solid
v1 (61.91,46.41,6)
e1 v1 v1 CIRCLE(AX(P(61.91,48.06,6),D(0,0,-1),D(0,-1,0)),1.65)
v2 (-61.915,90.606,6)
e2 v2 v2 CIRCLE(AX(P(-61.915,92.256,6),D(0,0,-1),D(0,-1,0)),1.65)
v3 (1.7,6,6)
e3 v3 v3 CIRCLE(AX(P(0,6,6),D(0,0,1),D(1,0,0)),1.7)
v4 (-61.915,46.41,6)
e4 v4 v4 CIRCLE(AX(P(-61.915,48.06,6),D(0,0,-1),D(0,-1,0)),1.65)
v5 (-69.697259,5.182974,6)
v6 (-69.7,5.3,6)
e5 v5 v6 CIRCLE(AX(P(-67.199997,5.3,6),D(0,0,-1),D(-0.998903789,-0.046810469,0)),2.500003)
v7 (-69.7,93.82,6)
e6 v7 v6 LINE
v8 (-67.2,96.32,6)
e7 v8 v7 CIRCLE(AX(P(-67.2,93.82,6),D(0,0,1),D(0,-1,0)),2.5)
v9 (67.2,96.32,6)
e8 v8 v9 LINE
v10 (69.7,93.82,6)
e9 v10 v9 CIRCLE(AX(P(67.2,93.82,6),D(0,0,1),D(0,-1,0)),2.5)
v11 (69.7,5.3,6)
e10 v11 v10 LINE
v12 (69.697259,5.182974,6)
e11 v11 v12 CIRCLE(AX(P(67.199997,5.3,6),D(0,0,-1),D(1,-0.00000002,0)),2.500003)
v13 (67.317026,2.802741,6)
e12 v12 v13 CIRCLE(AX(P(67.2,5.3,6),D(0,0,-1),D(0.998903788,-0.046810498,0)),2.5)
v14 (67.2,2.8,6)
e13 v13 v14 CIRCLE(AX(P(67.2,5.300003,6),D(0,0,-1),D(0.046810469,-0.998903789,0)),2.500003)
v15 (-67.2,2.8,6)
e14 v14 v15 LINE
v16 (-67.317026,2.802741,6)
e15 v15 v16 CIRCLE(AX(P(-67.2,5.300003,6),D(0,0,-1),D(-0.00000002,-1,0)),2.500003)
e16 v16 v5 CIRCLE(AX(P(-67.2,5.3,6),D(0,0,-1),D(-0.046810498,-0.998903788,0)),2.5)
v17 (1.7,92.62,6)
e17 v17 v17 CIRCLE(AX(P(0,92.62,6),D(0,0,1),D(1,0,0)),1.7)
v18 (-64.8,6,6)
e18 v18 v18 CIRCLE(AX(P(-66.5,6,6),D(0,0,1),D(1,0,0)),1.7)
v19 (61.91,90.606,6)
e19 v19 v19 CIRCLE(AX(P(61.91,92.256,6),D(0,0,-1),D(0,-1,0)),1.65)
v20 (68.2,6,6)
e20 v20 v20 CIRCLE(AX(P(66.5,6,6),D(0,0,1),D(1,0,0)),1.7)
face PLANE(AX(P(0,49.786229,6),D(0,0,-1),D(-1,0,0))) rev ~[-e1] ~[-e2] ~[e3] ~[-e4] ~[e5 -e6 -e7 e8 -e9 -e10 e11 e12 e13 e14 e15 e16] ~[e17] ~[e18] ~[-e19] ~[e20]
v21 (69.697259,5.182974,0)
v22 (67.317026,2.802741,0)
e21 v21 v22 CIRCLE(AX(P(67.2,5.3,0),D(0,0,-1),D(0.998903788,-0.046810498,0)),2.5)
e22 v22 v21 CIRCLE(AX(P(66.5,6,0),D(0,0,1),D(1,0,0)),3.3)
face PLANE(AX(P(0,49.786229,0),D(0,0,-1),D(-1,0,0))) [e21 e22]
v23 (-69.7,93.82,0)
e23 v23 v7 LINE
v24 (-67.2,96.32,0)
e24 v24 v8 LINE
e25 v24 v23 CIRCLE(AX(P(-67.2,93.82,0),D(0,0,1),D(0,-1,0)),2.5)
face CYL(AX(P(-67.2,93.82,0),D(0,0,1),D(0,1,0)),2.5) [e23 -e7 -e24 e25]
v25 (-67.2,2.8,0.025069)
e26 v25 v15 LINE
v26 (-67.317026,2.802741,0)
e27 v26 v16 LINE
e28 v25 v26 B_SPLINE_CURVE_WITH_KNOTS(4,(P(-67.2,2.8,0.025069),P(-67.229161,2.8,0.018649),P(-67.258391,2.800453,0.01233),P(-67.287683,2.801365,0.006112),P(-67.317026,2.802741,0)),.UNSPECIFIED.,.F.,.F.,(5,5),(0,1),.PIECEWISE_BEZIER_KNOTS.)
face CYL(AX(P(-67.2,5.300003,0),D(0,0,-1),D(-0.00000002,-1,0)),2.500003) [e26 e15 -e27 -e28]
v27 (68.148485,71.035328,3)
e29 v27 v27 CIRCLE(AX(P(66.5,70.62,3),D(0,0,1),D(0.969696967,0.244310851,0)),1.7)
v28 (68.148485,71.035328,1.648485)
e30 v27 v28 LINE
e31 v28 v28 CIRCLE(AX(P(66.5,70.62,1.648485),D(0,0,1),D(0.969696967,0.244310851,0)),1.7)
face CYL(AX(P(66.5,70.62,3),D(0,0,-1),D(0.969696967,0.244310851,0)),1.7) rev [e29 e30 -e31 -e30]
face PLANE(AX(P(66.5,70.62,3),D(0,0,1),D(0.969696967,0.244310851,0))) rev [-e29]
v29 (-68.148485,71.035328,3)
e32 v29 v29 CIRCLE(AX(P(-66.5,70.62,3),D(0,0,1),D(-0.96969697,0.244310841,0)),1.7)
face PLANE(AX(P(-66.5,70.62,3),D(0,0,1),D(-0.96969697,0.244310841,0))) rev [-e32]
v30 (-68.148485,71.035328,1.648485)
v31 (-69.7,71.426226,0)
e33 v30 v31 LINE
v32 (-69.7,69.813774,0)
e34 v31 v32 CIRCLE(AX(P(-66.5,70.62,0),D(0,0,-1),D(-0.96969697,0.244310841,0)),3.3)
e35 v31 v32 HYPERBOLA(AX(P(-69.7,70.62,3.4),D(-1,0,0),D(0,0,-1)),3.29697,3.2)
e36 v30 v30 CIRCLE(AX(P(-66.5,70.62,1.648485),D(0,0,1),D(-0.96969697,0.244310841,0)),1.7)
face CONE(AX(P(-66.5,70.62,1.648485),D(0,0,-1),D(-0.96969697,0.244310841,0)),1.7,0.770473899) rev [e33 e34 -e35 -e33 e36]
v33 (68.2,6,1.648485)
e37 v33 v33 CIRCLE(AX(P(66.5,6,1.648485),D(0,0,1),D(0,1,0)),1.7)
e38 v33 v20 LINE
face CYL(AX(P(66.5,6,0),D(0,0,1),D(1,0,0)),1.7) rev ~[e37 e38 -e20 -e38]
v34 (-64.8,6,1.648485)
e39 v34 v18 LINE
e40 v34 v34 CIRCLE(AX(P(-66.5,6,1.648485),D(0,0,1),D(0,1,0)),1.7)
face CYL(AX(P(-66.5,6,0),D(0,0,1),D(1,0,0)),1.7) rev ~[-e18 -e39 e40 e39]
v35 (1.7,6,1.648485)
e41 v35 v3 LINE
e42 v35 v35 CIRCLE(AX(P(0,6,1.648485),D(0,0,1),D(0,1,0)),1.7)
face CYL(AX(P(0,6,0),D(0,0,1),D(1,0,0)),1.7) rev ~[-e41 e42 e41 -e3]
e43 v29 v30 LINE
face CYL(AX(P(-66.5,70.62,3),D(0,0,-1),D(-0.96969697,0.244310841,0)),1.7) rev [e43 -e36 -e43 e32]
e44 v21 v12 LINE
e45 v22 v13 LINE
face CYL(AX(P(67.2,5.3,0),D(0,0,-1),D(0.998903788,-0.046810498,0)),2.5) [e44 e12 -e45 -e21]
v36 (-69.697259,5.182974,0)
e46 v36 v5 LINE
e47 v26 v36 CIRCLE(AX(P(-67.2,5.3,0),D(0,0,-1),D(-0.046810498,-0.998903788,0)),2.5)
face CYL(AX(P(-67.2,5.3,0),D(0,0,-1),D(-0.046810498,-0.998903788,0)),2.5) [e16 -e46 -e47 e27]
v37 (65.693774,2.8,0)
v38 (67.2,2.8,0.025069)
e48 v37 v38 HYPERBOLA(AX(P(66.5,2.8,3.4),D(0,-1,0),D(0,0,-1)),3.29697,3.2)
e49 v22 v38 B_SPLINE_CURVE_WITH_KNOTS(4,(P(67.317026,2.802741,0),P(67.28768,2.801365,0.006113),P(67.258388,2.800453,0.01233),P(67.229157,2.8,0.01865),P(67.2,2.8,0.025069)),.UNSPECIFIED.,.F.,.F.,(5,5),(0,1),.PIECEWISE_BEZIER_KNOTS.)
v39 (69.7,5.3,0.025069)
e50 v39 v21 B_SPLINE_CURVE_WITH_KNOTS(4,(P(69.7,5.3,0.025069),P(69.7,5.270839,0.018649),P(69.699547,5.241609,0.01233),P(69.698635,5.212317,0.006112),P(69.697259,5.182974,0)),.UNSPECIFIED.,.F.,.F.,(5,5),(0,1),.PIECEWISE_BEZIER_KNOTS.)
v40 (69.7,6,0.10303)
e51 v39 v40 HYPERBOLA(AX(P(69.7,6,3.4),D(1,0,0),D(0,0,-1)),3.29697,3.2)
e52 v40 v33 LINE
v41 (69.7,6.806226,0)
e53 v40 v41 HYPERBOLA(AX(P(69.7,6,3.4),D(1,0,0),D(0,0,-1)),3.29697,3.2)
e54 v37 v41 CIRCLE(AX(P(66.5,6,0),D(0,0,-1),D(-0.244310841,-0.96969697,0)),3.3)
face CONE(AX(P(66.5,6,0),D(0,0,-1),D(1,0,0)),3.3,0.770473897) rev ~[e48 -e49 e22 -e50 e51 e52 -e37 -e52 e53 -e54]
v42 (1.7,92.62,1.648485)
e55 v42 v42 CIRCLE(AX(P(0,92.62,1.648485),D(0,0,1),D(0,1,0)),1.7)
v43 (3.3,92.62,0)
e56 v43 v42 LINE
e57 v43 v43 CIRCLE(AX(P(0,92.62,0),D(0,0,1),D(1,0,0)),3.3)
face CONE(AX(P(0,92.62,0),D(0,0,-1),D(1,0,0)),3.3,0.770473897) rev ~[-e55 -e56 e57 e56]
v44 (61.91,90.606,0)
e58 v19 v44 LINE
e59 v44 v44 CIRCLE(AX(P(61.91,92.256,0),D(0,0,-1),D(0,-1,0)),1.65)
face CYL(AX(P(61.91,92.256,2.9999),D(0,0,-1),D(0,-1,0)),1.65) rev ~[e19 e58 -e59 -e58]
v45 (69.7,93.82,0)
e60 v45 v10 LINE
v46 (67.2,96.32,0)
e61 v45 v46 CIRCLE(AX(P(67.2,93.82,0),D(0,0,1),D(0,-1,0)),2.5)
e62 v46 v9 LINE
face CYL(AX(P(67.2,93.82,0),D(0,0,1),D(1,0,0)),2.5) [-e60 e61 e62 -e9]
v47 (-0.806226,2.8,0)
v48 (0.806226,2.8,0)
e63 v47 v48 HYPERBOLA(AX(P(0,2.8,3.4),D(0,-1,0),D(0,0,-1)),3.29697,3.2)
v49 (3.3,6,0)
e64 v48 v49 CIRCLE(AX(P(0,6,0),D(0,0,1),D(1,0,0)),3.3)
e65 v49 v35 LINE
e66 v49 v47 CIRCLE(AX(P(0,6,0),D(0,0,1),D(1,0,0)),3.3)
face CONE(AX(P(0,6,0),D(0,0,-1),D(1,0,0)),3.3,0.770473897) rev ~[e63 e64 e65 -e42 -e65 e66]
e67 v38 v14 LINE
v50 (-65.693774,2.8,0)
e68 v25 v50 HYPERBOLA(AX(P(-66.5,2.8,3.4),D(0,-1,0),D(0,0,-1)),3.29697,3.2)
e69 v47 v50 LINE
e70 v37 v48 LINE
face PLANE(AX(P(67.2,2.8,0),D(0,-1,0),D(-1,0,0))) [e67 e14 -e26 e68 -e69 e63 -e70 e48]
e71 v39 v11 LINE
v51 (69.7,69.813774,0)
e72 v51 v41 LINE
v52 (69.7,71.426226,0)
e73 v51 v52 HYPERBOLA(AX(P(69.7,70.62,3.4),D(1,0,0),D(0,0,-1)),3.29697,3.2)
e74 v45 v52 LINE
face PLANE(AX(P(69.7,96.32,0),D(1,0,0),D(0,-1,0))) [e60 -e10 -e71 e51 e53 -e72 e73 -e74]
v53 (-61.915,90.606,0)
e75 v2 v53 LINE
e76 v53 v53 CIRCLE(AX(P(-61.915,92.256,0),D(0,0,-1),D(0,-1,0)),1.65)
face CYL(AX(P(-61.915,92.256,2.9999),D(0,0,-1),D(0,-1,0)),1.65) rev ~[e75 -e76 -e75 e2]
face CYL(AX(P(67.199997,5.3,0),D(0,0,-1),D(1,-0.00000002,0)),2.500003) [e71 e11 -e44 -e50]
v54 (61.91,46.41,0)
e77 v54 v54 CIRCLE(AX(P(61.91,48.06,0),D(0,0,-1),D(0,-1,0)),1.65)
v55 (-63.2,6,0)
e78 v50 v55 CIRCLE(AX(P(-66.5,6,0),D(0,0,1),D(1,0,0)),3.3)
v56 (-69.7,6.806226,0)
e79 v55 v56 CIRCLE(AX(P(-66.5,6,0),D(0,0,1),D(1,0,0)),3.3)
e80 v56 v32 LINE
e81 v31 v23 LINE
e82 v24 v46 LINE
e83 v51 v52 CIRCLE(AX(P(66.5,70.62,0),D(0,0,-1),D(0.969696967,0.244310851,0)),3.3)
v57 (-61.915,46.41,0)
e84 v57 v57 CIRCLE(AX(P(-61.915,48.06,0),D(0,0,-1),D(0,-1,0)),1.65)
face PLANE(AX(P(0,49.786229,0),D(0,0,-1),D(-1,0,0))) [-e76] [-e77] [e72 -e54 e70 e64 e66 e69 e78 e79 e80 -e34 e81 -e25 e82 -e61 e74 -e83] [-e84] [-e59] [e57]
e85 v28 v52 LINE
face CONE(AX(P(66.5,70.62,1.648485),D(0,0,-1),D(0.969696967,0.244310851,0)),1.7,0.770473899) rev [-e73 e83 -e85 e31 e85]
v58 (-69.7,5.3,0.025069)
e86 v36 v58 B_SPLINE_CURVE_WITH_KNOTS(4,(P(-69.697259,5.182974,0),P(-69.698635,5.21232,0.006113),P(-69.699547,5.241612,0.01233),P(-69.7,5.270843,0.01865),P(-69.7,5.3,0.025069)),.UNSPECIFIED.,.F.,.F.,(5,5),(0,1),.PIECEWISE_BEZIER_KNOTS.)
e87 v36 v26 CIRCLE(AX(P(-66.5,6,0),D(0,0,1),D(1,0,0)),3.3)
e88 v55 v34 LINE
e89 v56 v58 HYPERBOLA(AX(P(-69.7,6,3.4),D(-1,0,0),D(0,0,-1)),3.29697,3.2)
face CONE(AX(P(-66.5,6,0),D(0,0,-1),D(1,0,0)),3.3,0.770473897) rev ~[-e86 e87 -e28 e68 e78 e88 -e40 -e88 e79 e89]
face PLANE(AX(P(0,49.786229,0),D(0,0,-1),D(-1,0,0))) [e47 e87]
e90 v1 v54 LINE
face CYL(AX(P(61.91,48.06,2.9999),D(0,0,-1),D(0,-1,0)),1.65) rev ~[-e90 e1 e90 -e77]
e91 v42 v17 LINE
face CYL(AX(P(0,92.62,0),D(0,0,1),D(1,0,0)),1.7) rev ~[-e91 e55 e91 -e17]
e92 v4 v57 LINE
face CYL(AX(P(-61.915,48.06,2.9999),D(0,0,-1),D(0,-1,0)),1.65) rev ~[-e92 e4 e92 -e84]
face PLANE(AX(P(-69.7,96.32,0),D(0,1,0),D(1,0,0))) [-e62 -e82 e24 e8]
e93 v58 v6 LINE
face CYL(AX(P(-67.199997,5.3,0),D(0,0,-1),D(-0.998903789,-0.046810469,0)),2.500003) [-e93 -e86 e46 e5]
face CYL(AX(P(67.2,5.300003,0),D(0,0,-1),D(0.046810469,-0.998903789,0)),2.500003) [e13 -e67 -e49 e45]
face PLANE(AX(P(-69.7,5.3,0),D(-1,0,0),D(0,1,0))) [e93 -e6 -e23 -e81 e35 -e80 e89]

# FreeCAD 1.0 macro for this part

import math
import FreeCAD as App
import Part
import Sketcher
from FreeCAD import Vector


def edges_at(feature, points):
    """Names of the edges that pass closest to the given points."""
    edges = feature.Shape.Edges
    near = lambda p: min(range(len(edges)), key=lambda i: edges[i].distToShape(Part.Vertex(*p))[0])
    return sorted({f"Edge{near(p) + 1}" for p in points})

doc = App.newDocument("Part")
body = doc.addObject("PartDesign::Body", "Body")

# Sketch on XY plane
sketch1 = body.newObject("Sketcher::SketchObject", "Sketch")
sketch1.AttachmentSupport = (doc.getObject("XY_Plane"), [""])
sketch1.MapMode = "FlatFace"
sketch1.addGeometry(Part.ArcOfCircle(Part.Circle(Vector(67.2, 5.3, 0), Vector(0, 0, 1), 2.5), math.radians(-2.68), math.radians(0)), False)
sketch1.addGeometry(Part.ArcOfCircle(Part.Circle(Vector(67.2, 5.3, 0), Vector(0, 0, 1), 2.5), math.radians(-87), math.radians(-3)), False)
sketch1.addGeometry(Part.ArcOfCircle(Part.Circle(Vector(67.2, 5.3, 0), Vector(0, 0, 1), 2.5), math.radians(-90), math.radians(-87.32)), False)
sketch1.addGeometry(Part.LineSegment(Vector(67.2, 2.8, 0), Vector(-67.2, 2.8, 0)), False)
sketch1.addGeometry(Part.ArcOfCircle(Part.Circle(Vector(-67.2, 5.3, 0), Vector(0, 0, 1), 2.5), math.radians(-92.68), math.radians(-90)), False)
sketch1.addGeometry(Part.ArcOfCircle(Part.Circle(Vector(-67.2, 5.3, 0), Vector(0, 0, 1), 2.5), math.radians(-177), math.radians(-93)), False)
sketch1.addGeometry(Part.ArcOfCircle(Part.Circle(Vector(-67.2, 5.3, 0), Vector(0, 0, 1), 2.5), math.radians(-180), math.radians(-177.32)), False)
sketch1.addGeometry(Part.LineSegment(Vector(-69.7, 5.3, 0), Vector(-69.7, 96.32, 0)), False)
sketch1.addGeometry(Part.LineSegment(Vector(-69.7, 96.32, 0), Vector(69.7, 96.32, 0)), False)
sketch1.addGeometry(Part.LineSegment(Vector(69.7, 96.32, 0), Vector(69.7, 5.3, 0)), False)
sketch1.addConstraint(Sketcher.Constraint("Tangent", 0, 1, 1, 2))
sketch1.addConstraint(Sketcher.Constraint("Tangent", 1, 1, 2, 2))
sketch1.addConstraint(Sketcher.Constraint("Tangent", 2, 1, 3, 1))
sketch1.addConstraint(Sketcher.Constraint("Tangent", 3, 2, 4, 2))
sketch1.addConstraint(Sketcher.Constraint("Tangent", 4, 1, 5, 2))
sketch1.addConstraint(Sketcher.Constraint("Tangent", 5, 1, 6, 2))
sketch1.addConstraint(Sketcher.Constraint("Tangent", 6, 1, 7, 1))
sketch1.addConstraint(Sketcher.Constraint("Coincident", 7, 2, 8, 1))
sketch1.addConstraint(Sketcher.Constraint("Coincident", 8, 2, 9, 1))
sketch1.addConstraint(Sketcher.Constraint("Tangent", 9, 2, 0, 2))
sketch1.addConstraint(Sketcher.Constraint("Horizontal", 3))
sketch1.addConstraint(Sketcher.Constraint("Vertical", 7))
sketch1.addConstraint(Sketcher.Constraint("Horizontal", 8))
sketch1.addConstraint(Sketcher.Constraint("Vertical", 9))
sketch1.addConstraint(Sketcher.Constraint("Coincident", 2, 3, 0, 3))
sketch1.addConstraint(Sketcher.Constraint("Coincident", 6, 3, 4, 3))
sketch1.addConstraint(Sketcher.Constraint("Equal", 2, 4))
sketch1.addConstraint(Sketcher.Constraint("Symmetric", 1, 1, 4, 1, -2))
sketch1.addConstraint(Sketcher.Constraint("Horizontal", 0, 1, 5, 1))
sketch1.addConstraint(Sketcher.Constraint("Radius", 1, 2.5))
sketch1.addConstraint(Sketcher.Constraint("DistanceX", 3, 2, 3, 1, 134.4))
sketch1.addConstraint(Sketcher.Constraint("DistanceY", 7, 1, 7, 2, 91.02))
sketch1.addConstraint(Sketcher.Constraint("DistanceY", -1, 1, 0, 3, 5.3))
sketch1.addConstraint(Sketcher.Constraint("DistanceX", -1, 1, 0, 1, 69.697259))
sketch1.addConstraint(Sketcher.Constraint("DistanceY", -1, 1, 1, 1, 2.802741))
pad1 = body.newObject("PartDesign::Pad", "Pad")
pad1.Profile = sketch1
pad1.Length = 6

# Sketch on XZ plane
sketch2 = body.newObject("Sketcher::SketchObject", "Sketch001")
sketch2.AttachmentSupport = (doc.getObject("XZ_Plane"), [""])
sketch2.MapMode = "FlatFace"
sketch2.AttachmentOffset = App.Placement(Vector(0, 0, -70.62), App.Rotation())
sketch2.addGeometry(Part.LineSegment(Vector(69.8, 0, 0), Vector(66.5, 0, 0)), False)
sketch2.addGeometry(Part.LineSegment(Vector(66.5, 0, 0), Vector(66.5, 3, 0)), False)
sketch2.addGeometry(Part.LineSegment(Vector(66.5, 3, 0), Vector(68.2, 3, 0)), False)
sketch2.addGeometry(Part.LineSegment(Vector(68.2, 3, 0), Vector(68.2, 1.6, 0)), False)
sketch2.addGeometry(Part.LineSegment(Vector(68.2, 1.6, 0), Vector(69.8, 0, 0)), False)
sketch2.addGeometry(Part.LineSegment(Vector(66.5, 0, 0), Vector(66.5, 3, 0)), True)  # axis
sketch2.addConstraint(Sketcher.Constraint("Coincident", 0, 2, 1, 1))
sketch2.addConstraint(Sketcher.Constraint("Coincident", 1, 2, 2, 1))
sketch2.addConstraint(Sketcher.Constraint("Coincident", 2, 2, 3, 1))
sketch2.addConstraint(Sketcher.Constraint("Coincident", 3, 2, 4, 1))
sketch2.addConstraint(Sketcher.Constraint("Coincident", 4, 2, 0, 1))
sketch2.addConstraint(Sketcher.Constraint("Horizontal", 0))
sketch2.addConstraint(Sketcher.Constraint("Vertical", 1))
sketch2.addConstraint(Sketcher.Constraint("Horizontal", 2))
sketch2.addConstraint(Sketcher.Constraint("Vertical", 3))
sketch2.addConstraint(Sketcher.Constraint("Vertical", 5))
sketch2.addConstraint(Sketcher.Constraint("Coincident", 5, 1, 0, 2))
sketch2.addConstraint(Sketcher.Constraint("Horizontal", 2, 2, 5, 2))
sketch2.addConstraint(Sketcher.Constraint("DistanceX", 2, 1, 2, 2, 1.7))
sketch2.addConstraint(Sketcher.Constraint("DistanceY", -1, 1, 1, 2, 3.0))
sketch2.addConstraint(Sketcher.Constraint("DistanceX", -1, 1, 0, 2, 66.5))
sketch2.addConstraint(Sketcher.Constraint("DistanceY", 1, 1, 1, 2, 3.0002))
sketch2.addConstraint(Sketcher.Constraint("Distance", 4, 2.29756))
sketch2.addConstraint(Sketcher.Constraint("DistanceX", 0, 2, 0, 1, 3.300194))
groove = body.newObject("PartDesign::Groove", "Groove")
groove.Profile = sketch2
groove.ReferenceAxis = (sketch2, ["Axis0"])
groove.Angle = 360

# Sketch on XZ plane
sketch3 = body.newObject("Sketcher::SketchObject", "Sketch002")
sketch3.AttachmentSupport = (doc.getObject("XZ_Plane"), [""])
sketch3.MapMode = "FlatFace"
sketch3.AttachmentOffset = App.Placement(Vector(0, 0, -70.62), App.Rotation())
sketch3.addGeometry(Part.LineSegment(Vector(-63.2, 0, 0), Vector(-66.5, 0, 0)), False)
sketch3.addGeometry(Part.LineSegment(Vector(-66.5, 0, 0), Vector(-66.5, 3, 0)), False)
sketch3.addGeometry(Part.LineSegment(Vector(-66.5, 3, 0), Vector(-64.8, 3, 0)), False)
sketch3.addGeometry(Part.LineSegment(Vector(-64.8, 3, 0), Vector(-64.8, 1.6, 0)), False)
sketch3.addGeometry(Part.LineSegment(Vector(-64.8, 1.6, 0), Vector(-63.2, 0, 0)), False)
sketch3.addGeometry(Part.LineSegment(Vector(-66.5, 0, 0), Vector(-66.5, 3, 0)), True)  # axis
sketch3.addConstraint(Sketcher.Constraint("Coincident", 0, 2, 1, 1))
sketch3.addConstraint(Sketcher.Constraint("Coincident", 1, 2, 2, 1))
sketch3.addConstraint(Sketcher.Constraint("Coincident", 2, 2, 3, 1))
sketch3.addConstraint(Sketcher.Constraint("Coincident", 3, 2, 4, 1))
sketch3.addConstraint(Sketcher.Constraint("Coincident", 4, 2, 0, 1))
sketch3.addConstraint(Sketcher.Constraint("Horizontal", 0))
sketch3.addConstraint(Sketcher.Constraint("Vertical", 1))
sketch3.addConstraint(Sketcher.Constraint("Horizontal", 2))
sketch3.addConstraint(Sketcher.Constraint("Vertical", 3))
sketch3.addConstraint(Sketcher.Constraint("Vertical", 5))
sketch3.addConstraint(Sketcher.Constraint("Coincident", 5, 1, 0, 2))
sketch3.addConstraint(Sketcher.Constraint("Horizontal", 2, 2, 5, 2))
sketch3.addConstraint(Sketcher.Constraint("DistanceX", 2, 1, 2, 2, 1.7))
sketch3.addConstraint(Sketcher.Constraint("DistanceY", -1, 1, 1, 2, 3.0))
sketch3.addConstraint(Sketcher.Constraint("DistanceX", 0, 2, -1, 1, 66.5))
sketch3.addConstraint(Sketcher.Constraint("DistanceY", 1, 1, 1, 2, 3.0002))
sketch3.addConstraint(Sketcher.Constraint("Distance", 4, 2.29756))
sketch3.addConstraint(Sketcher.Constraint("DistanceX", 0, 2, 0, 1, 3.300194))
groove2 = body.newObject("PartDesign::Groove", "Groove001")
groove2.Profile = sketch3
groove2.ReferenceAxis = (sketch3, ["Axis0"])
groove2.Angle = 360

# Sketch on XZ plane
sketch4 = body.newObject("Sketcher::SketchObject", "Sketch003")
sketch4.AttachmentSupport = (doc.getObject("XZ_Plane"), [""])
sketch4.MapMode = "FlatFace"
sketch4.AttachmentOffset = App.Placement(Vector(0, 0, -92.256), App.Rotation())
sketch4.addGeometry(Part.LineSegment(Vector(61.9, 17, 0), Vector(61.9, 3, 0)), False)
sketch4.addGeometry(Part.LineSegment(Vector(61.9, 3, 0), Vector(65.9, 3, 0)), False)
sketch4.addGeometry(Part.LineSegment(Vector(65.9, 3, 0), Vector(65.9, 17, 0)), False)
sketch4.addGeometry(Part.LineSegment(Vector(65.9, 17, 0), Vector(61.9, 17, 0)), False)
sketch4.addGeometry(Part.LineSegment(Vector(61.9, 17, 0), Vector(61.9, 3, 0)), True)  # axis
sketch4.addConstraint(Sketcher.Constraint("Coincident", 0, 2, 1, 1))
sketch4.addConstraint(Sketcher.Constraint("Coincident", 1, 2, 2, 1))
sketch4.addConstraint(Sketcher.Constraint("Coincident", 2, 2, 3, 1))
sketch4.addConstraint(Sketcher.Constraint("Coincident", 3, 2, 0, 1))
sketch4.addConstraint(Sketcher.Constraint("Vertical", 0))
sketch4.addConstraint(Sketcher.Constraint("Horizontal", 1))
sketch4.addConstraint(Sketcher.Constraint("Vertical", 2))
sketch4.addConstraint(Sketcher.Constraint("Horizontal", 3))
sketch4.addConstraint(Sketcher.Constraint("Vertical", 4))
sketch4.addConstraint(Sketcher.Constraint("Coincident", 4, 1, 3, 2))
sketch4.addConstraint(Sketcher.Constraint("Horizontal", 1, 2, 4, 2))
sketch4.addConstraint(Sketcher.Constraint("DistanceX", 1, 1, 1, 2, 4.0))
sketch4.addConstraint(Sketcher.Constraint("DistanceY", 0, 2, 0, 1, 14.0))
sketch4.addConstraint(Sketcher.Constraint("DistanceY", -1, 1, 0, 2, 3.0))
sketch4.addConstraint(Sketcher.Constraint("DistanceX", -1, 1, 0, 2, 61.91))
revolution = body.newObject("PartDesign::Revolution", "Revolution")
revolution.Profile = sketch4
revolution.ReferenceAxis = (sketch4, ["Axis0"])
revolution.Angle = 360

# Sketch on XZ plane
sketch5 = body.newObject("Sketcher::SketchObject", "Sketch004")
sketch5.AttachmentSupport = (doc.getObject("XZ_Plane"), [""])
sketch5.MapMode = "FlatFace"
sketch5.AttachmentOffset = App.Placement(Vector(0, 0, -92.256), App.Rotation())
sketch5.addGeometry(Part.LineSegment(Vector(-61.9, 17, 0), Vector(-61.9, 3, 0)), False)
sketch5.addGeometry(Part.LineSegment(Vector(-61.9, 3, 0), Vector(-57.9, 3, 0)), False)
sketch5.addGeometry(Part.LineSegment(Vector(-57.9, 3, 0), Vector(-57.9, 17, 0)), False)
sketch5.addGeometry(Part.LineSegment(Vector(-57.9, 17, 0), Vector(-61.9, 17, 0)), False)
sketch5.addGeometry(Part.LineSegment(Vector(-61.9, 17, 0), Vector(-61.9, 3, 0)), True)  # axis
sketch5.addConstraint(Sketcher.Constraint("Coincident", 0, 2, 1, 1))
sketch5.addConstraint(Sketcher.Constraint("Coincident", 1, 2, 2, 1))
sketch5.addConstraint(Sketcher.Constraint("Coincident", 2, 2, 3, 1))
sketch5.addConstraint(Sketcher.Constraint("Coincident", 3, 2, 0, 1))
sketch5.addConstraint(Sketcher.Constraint("Vertical", 0))
sketch5.addConstraint(Sketcher.Constraint("Horizontal", 1))
sketch5.addConstraint(Sketcher.Constraint("Vertical", 2))
sketch5.addConstraint(Sketcher.Constraint("Horizontal", 3))
sketch5.addConstraint(Sketcher.Constraint("Vertical", 4))
sketch5.addConstraint(Sketcher.Constraint("Coincident", 4, 1, 3, 2))
sketch5.addConstraint(Sketcher.Constraint("Horizontal", 1, 2, 4, 2))
sketch5.addConstraint(Sketcher.Constraint("DistanceX", 1, 1, 1, 2, 4.0))
sketch5.addConstraint(Sketcher.Constraint("DistanceY", 0, 2, 0, 1, 14.0))
sketch5.addConstraint(Sketcher.Constraint("DistanceY", -1, 1, 0, 2, 3.0))
sketch5.addConstraint(Sketcher.Constraint("DistanceX", 0, 2, -1, 1, 61.915))
revolution2 = body.newObject("PartDesign::Revolution", "Revolution001")
revolution2.Profile = sketch5
revolution2.ReferenceAxis = (sketch5, ["Axis0"])
revolution2.Angle = 360

# Sketch on XZ plane
sketch6 = body.newObject("Sketcher::SketchObject", "Sketch005")
sketch6.AttachmentSupport = (doc.getObject("XZ_Plane"), [""])
sketch6.MapMode = "FlatFace"
sketch6.AttachmentOffset = App.Placement(Vector(0, 0, -48.06), App.Rotation())
sketch6.addGeometry(Part.LineSegment(Vector(61.9, 17, 0), Vector(61.9, 3, 0)), False)
sketch6.addGeometry(Part.LineSegment(Vector(61.9, 3, 0), Vector(65.9, 3, 0)), False)
sketch6.addGeometry(Part.LineSegment(Vector(65.9, 3, 0), Vector(65.9, 17, 0)), False)
sketch6.addGeometry(Part.LineSegment(Vector(65.9, 17, 0), Vector(61.9, 17, 0)), False)
sketch6.addGeometry(Part.LineSegment(Vector(61.9, 17, 0), Vector(61.9, 3, 0)), True)  # axis
sketch6.addConstraint(Sketcher.Constraint("Coincident", 0, 2, 1, 1))
sketch6.addConstraint(Sketcher.Constraint("Coincident", 1, 2, 2, 1))
sketch6.addConstraint(Sketcher.Constraint("Coincident", 2, 2, 3, 1))
sketch6.addConstraint(Sketcher.Constraint("Coincident", 3, 2, 0, 1))
sketch6.addConstraint(Sketcher.Constraint("Vertical", 0))
sketch6.addConstraint(Sketcher.Constraint("Horizontal", 1))
sketch6.addConstraint(Sketcher.Constraint("Vertical", 2))
sketch6.addConstraint(Sketcher.Constraint("Horizontal", 3))
sketch6.addConstraint(Sketcher.Constraint("Vertical", 4))
sketch6.addConstraint(Sketcher.Constraint("Coincident", 4, 1, 3, 2))
sketch6.addConstraint(Sketcher.Constraint("Horizontal", 1, 2, 4, 2))
sketch6.addConstraint(Sketcher.Constraint("DistanceX", 1, 1, 1, 2, 4.0))
sketch6.addConstraint(Sketcher.Constraint("DistanceY", 0, 2, 0, 1, 14.0))
sketch6.addConstraint(Sketcher.Constraint("DistanceY", -1, 1, 0, 2, 3.0))
sketch6.addConstraint(Sketcher.Constraint("DistanceX", -1, 1, 0, 2, 61.91))
revolution3 = body.newObject("PartDesign::Revolution", "Revolution002")
revolution3.Profile = sketch6
revolution3.ReferenceAxis = (sketch6, ["Axis0"])
revolution3.Angle = 360

# Sketch on XZ plane
sketch7 = body.newObject("Sketcher::SketchObject", "Sketch006")
sketch7.AttachmentSupport = (doc.getObject("XZ_Plane"), [""])
sketch7.MapMode = "FlatFace"
sketch7.AttachmentOffset = App.Placement(Vector(0, 0, -48.06), App.Rotation())
sketch7.addGeometry(Part.LineSegment(Vector(-61.9, 17, 0), Vector(-61.9, 3, 0)), False)
sketch7.addGeometry(Part.LineSegment(Vector(-61.9, 3, 0), Vector(-57.9, 3, 0)), False)
sketch7.addGeometry(Part.LineSegment(Vector(-57.9, 3, 0), Vector(-57.9, 17, 0)), False)
sketch7.addGeometry(Part.LineSegment(Vector(-57.9, 17, 0), Vector(-61.9, 17, 0)), False)
sketch7.addGeometry(Part.LineSegment(Vector(-61.9, 17, 0), Vector(-61.9, 3, 0)), True)  # axis
sketch7.addConstraint(Sketcher.Constraint("Coincident", 0, 2, 1, 1))
sketch7.addConstraint(Sketcher.Constraint("Coincident", 1, 2, 2, 1))
sketch7.addConstraint(Sketcher.Constraint("Coincident", 2, 2, 3, 1))
sketch7.addConstraint(Sketcher.Constraint("Coincident", 3, 2, 0, 1))
sketch7.addConstraint(Sketcher.Constraint("Vertical", 0))
sketch7.addConstraint(Sketcher.Constraint("Horizontal", 1))
sketch7.addConstraint(Sketcher.Constraint("Vertical", 2))
sketch7.addConstraint(Sketcher.Constraint("Horizontal", 3))
sketch7.addConstraint(Sketcher.Constraint("Vertical", 4))
sketch7.addConstraint(Sketcher.Constraint("Coincident", 4, 1, 3, 2))
sketch7.addConstraint(Sketcher.Constraint("Horizontal", 1, 2, 4, 2))
sketch7.addConstraint(Sketcher.Constraint("DistanceX", 1, 1, 1, 2, 4.0))
sketch7.addConstraint(Sketcher.Constraint("DistanceY", 0, 2, 0, 1, 14.0))
sketch7.addConstraint(Sketcher.Constraint("DistanceY", -1, 1, 0, 2, 3.0))
sketch7.addConstraint(Sketcher.Constraint("DistanceX", 0, 2, -1, 1, 61.915))
revolution4 = body.newObject("PartDesign::Revolution", "Revolution003")
revolution4.Profile = sketch7
revolution4.ReferenceAxis = (sketch7, ["Axis0"])
revolution4.Angle = 360

# Sketch on XY plane
sketch8 = body.newObject("Sketcher::SketchObject", "Sketch007")
sketch8.AttachmentSupport = (doc.getObject("XY_Plane"), [""])
sketch8.MapMode = "FlatFace"
sketch8.addGeometry(Part.Circle(Vector(-66.5, 6, 0), Vector(0, 0, 1), 1.7), False)
sketch8.addGeometry(Part.Circle(Vector(0, 6, 0), Vector(0, 0, 1), 1.7), False)
sketch8.addGeometry(Part.Circle(Vector(66.5, 6, 0), Vector(0, 0, 1), 1.7), False)
sketch8.addGeometry(Part.Circle(Vector(0, 92.6, 0), Vector(0, 0, 1), 1.7), False)
sketch8.addConstraint(Sketcher.Constraint("Equal", 0, 1))
sketch8.addConstraint(Sketcher.Constraint("Equal", 1, 2))
sketch8.addConstraint(Sketcher.Constraint("Equal", 2, 3))
sketch8.addConstraint(Sketcher.Constraint("Symmetric", 0, 3, 2, 3, -2))
sketch8.addConstraint(Sketcher.Constraint("PointOnObject", 1, 3, -2))
sketch8.addConstraint(Sketcher.Constraint("PointOnObject", 3, 3, -2))
sketch8.addConstraint(Sketcher.Constraint("Horizontal", 0, 3, 1, 3))
sketch8.addConstraint(Sketcher.Constraint("Diameter", 0, 3.4))
sketch8.addConstraint(Sketcher.Constraint("DistanceY", -1, 1, 0, 3, 6.0))
sketch8.addConstraint(Sketcher.Constraint("DistanceX", 0, 3, 2, 3, 133.0))
sketch8.addConstraint(Sketcher.Constraint("DistanceY", -1, 1, 3, 3, 92.62))
doc.recompute()
hole = body.newObject("PartDesign::Hole", "Hole")
hole.Profile = sketch8
hole.ThreadType = "None"
hole.Diameter = 3.4
hole.DepthType = "Dimension"
hole.Depth = 17
hole.DrillPoint = "Flat"
hole.HoleCutType = "Countersink"
hole.HoleCutDiameter = 6.6
hole.HoleCutCountersinkAngle = 88.289805
hole.Reversed = True

# Sketch on XY plane
sketch9 = body.newObject("Sketcher::SketchObject", "Sketch008")
sketch9.AttachmentSupport = (doc.getObject("XY_Plane"), [""])
sketch9.MapMode = "FlatFace"
sketch9.AttachmentOffset = App.Placement(Vector(0, 0, 17), App.Rotation())
sketch9.addGeometry(Part.Circle(Vector(-61.9, 48.1, 0), Vector(0, 0, 1), 2.1), False)
sketch9.addGeometry(Part.Circle(Vector(61.9, 48.1, 0), Vector(0, 0, 1), 2.1), False)
sketch9.addGeometry(Part.Circle(Vector(-61.9, 92.3, 0), Vector(0, 0, 1), 2.1), False)
sketch9.addGeometry(Part.Circle(Vector(61.9, 92.3, 0), Vector(0, 0, 1), 2.1), False)
sketch9.addConstraint(Sketcher.Constraint("Equal", 0, 1))
sketch9.addConstraint(Sketcher.Constraint("Equal", 1, 2))
sketch9.addConstraint(Sketcher.Constraint("Equal", 2, 3))
sketch9.addConstraint(Sketcher.Constraint("Horizontal", 0, 3, 1, 3))
sketch9.addConstraint(Sketcher.Constraint("Horizontal", 2, 3, 3, 3))
sketch9.addConstraint(Sketcher.Constraint("Vertical", 0, 3, 2, 3))
sketch9.addConstraint(Sketcher.Constraint("Vertical", 1, 3, 3, 3))
sketch9.addConstraint(Sketcher.Constraint("Diameter", 0, 4.2))
sketch9.addConstraint(Sketcher.Constraint("DistanceY", -1, 1, 0, 3, 48.06))
sketch9.addConstraint(Sketcher.Constraint("DistanceX", -1, 1, 1, 3, 61.91))
sketch9.addConstraint(Sketcher.Constraint("DistanceX", 0, 3, -1, 1, 61.915))
sketch9.addConstraint(Sketcher.Constraint("DistanceY", -1, 1, 2, 3, 92.256))
doc.recompute()
hole2 = body.newObject("PartDesign::Hole", "Hole001")
hole2.Profile = sketch9
hole2.ThreadType = "None"
hole2.Diameter = 4.2
hole2.DepthType = "Dimension"
hole2.Depth = 6
hole2.DrillPoint = "Flat"
doc.recompute()

fillet = body.newObject("PartDesign::Fillet", "Fillet")
fillet.Base = (hole2, edges_at(hole2, [(69.7, 96.32, 3), (-69.7, 96.32, 3)]))
fillet.Radius = 2.5

# Sketch on YZ plane
sketch10 = body.newObject("Sketcher::SketchObject", "Sketch009")
sketch10.AttachmentSupport = (doc.getObject("YZ_Plane"), [""])
sketch10.MapMode = "FlatFace"
sketch10.AttachmentOffset = App.Placement(Vector(0, 0, -61.915), App.Rotation())
sketch10.addGeometry(Part.LineSegment(Vector(48.1, 0, 0), Vector(48.1, 6, 0)), False)
sketch10.addGeometry(Part.LineSegment(Vector(48.1, 6, 0), Vector(46.4, 6, 0)), False)
sketch10.addGeometry(Part.LineSegment(Vector(46.4, 6, 0), Vector(46.4, 0, 0)), False)
sketch10.addGeometry(Part.LineSegment(Vector(46.4, 0, 0), Vector(48.1, 0, 0)), False)
sketch10.addGeometry(Part.LineSegment(Vector(48.1, 6, 0), Vector(48.1, 0, 0)), True)  # axis
sketch10.addConstraint(Sketcher.Constraint("Coincident", 0, 2, 1, 1))
sketch10.addConstraint(Sketcher.Constraint("Coincident", 1, 2, 2, 1))
sketch10.addConstraint(Sketcher.Constraint("Coincident", 2, 2, 3, 1))
sketch10.addConstraint(Sketcher.Constraint("Coincident", 3, 2, 0, 1))
sketch10.addConstraint(Sketcher.Constraint("Vertical", 0))
sketch10.addConstraint(Sketcher.Constraint("Horizontal", 1))
sketch10.addConstraint(Sketcher.Constraint("Vertical", 2))
sketch10.addConstraint(Sketcher.Constraint("Horizontal", 3))
sketch10.addConstraint(Sketcher.Constraint("Vertical", 4))
sketch10.addConstraint(Sketcher.Constraint("Coincident", 4, 1, 0, 2))
sketch10.addConstraint(Sketcher.Constraint("Horizontal", 2, 2, 4, 2))
sketch10.addConstraint(Sketcher.Constraint("DistanceY", -1, 1, 0, 2, 6.0))
sketch10.addConstraint(Sketcher.Constraint("DistanceX", 1, 2, 1, 1, 1.65))
sketch10.addConstraint(Sketcher.Constraint("DistanceX", -1, 1, 0, 2, 48.06))
sketch10.addConstraint(Sketcher.Constraint("DistanceY", 0, 1, 0, 2, 6.0002))
groove3 = body.newObject("PartDesign::Groove", "Groove002")
groove3.Profile = sketch10
groove3.ReferenceAxis = (sketch10, ["Axis0"])
groove3.Angle = 360
doc.recompute()

linearpattern = body.newObject("PartDesign::LinearPattern", "LinearPattern")
linearpattern.Originals = [groove3]
linearpattern.Direction = (doc.getObject("Y_Axis"), [""])
linearpattern.Mode = "offset"
linearpattern.Offset = 44.196
linearpattern.Occurrences = 2
body.Tip = linearpattern
doc.recompute()

datumline = body.newObject("PartDesign::Line", "DatumLine")
datumline.Placement = App.Placement(Vector(0, 0, 0), App.Rotation(Vector(0, 0, 1), Vector(0.941807456, 0.336152815, 0)))
linearpattern2 = body.newObject("PartDesign::LinearPattern", "LinearPattern001")
linearpattern2.Originals = [groove3]
linearpattern2.Direction = (datumline, [""])
linearpattern2.Mode = "offset"
linearpattern2.Offset = 131.475918
linearpattern2.Occurrences = 2
body.Tip = linearpattern2
doc.recompute()

linearpattern3 = body.newObject("PartDesign::LinearPattern", "LinearPattern002")
linearpattern3.Originals = [groove3]
linearpattern3.Direction = (doc.getObject("X_Axis"), [""])
linearpattern3.Mode = "offset"
linearpattern3.Offset = 123.825
linearpattern3.Occurrences = 2
body.Tip = linearpattern3

# Sketch on XY plane
sketch11 = body.newObject("Sketcher::SketchObject", "Sketch010")
sketch11.AttachmentSupport = (doc.getObject("XY_Plane"), [""])
sketch11.MapMode = "FlatFace"
sketch11.AttachmentOffset = App.Placement(Vector(0, 0, 6), App.Rotation())
sketch11.addGeometry(Part.LineSegment(Vector(-82, 102, 0), Vector(-82, 34, 0)), False)
sketch11.addGeometry(Part.LineSegment(Vector(-82, 34, 0), Vector(80, 34, 0)), False)
sketch11.addGeometry(Part.LineSegment(Vector(80, 34, 0), Vector(80, 102, 0)), False)
sketch11.addGeometry(Part.LineSegment(Vector(80, 102, 0), Vector(-82, 102, 0)), False)
sketch11.addConstraint(Sketcher.Constraint("Coincident", 0, 2, 1, 1))
sketch11.addConstraint(Sketcher.Constraint("Coincident", 1, 2, 2, 1))
sketch11.addConstraint(Sketcher.Constraint("Coincident", 2, 2, 3, 1))
sketch11.addConstraint(Sketcher.Constraint("Coincident", 3, 2, 0, 1))
sketch11.addConstraint(Sketcher.Constraint("Vertical", 0))
sketch11.addConstraint(Sketcher.Constraint("Horizontal", 1))
sketch11.addConstraint(Sketcher.Constraint("Vertical", 2))
sketch11.addConstraint(Sketcher.Constraint("Horizontal", 3))
sketch11.addConstraint(Sketcher.Constraint("DistanceX", 1, 1, 1, 2, 161.593973))
sketch11.addConstraint(Sketcher.Constraint("DistanceY", 0, 2, 0, 1, 68.078942))
sketch11.addConstraint(Sketcher.Constraint("DistanceX", 0, 2, -1, 1, 81.79448))
sketch11.addConstraint(Sketcher.Constraint("DistanceY", -1, 1, 0, 2, 33.787132))
pocket1 = body.newObject("PartDesign::Pocket", "Pocket")
pocket1.Profile = sketch11
pocket1.Type = "ThroughAll"
pocket1.Reversed = True

doc.recompute()
